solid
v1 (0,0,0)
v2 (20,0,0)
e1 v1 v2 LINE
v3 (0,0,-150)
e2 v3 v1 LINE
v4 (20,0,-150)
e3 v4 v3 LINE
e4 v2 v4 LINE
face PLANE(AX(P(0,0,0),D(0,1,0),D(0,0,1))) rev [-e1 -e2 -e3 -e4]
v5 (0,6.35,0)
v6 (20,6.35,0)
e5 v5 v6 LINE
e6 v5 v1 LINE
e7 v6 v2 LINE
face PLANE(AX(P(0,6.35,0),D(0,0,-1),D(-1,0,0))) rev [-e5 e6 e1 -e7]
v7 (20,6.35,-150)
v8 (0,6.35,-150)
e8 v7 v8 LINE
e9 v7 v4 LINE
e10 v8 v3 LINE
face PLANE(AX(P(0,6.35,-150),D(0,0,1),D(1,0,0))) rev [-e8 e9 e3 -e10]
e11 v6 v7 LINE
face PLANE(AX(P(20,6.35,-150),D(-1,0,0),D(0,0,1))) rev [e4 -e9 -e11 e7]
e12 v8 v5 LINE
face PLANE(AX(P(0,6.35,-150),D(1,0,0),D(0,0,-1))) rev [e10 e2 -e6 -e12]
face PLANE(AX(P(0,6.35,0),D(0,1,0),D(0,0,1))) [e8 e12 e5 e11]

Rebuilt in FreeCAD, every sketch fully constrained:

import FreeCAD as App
import Part
import Sketcher
from FreeCAD import Vector

doc = App.newDocument("Part")
params = doc.addObject("Spreadsheet::Sheet", "Params")
for row, (alias, value) in enumerate([
    ("sketch1_width", "20 mm"),
    ("sketch1_height", "150 mm"),
    ("pad1_length", "6.35 mm"),
], start=1):
    params.set(f"A{row}", alias)
    params.set(f"B{row}", "=" + value)
    params.setAlias(f"B{row}", alias)

body = doc.addObject("PartDesign::Body", "Body")

sketch1 = body.newObject("Sketcher::SketchObject", "Sketch")
sketch1.AttachmentSupport = (doc.getObject("XZ_Plane"), [""])
sketch1.MapMode = "FlatFace"
sketch1.addGeometry(Part.LineSegment(Vector(0, -150, 0), Vector(0, 0, 0)), False)
sketch1.addGeometry(Part.LineSegment(Vector(0, 0, 0), Vector(20, 0, 0)), False)
sketch1.addGeometry(Part.LineSegment(Vector(20, 0, 0), Vector(20, -150, 0)), False)
sketch1.addGeometry(Part.LineSegment(Vector(20, -150, 0), Vector(0, -150, 0)), False)
sketch1.addConstraint(Sketcher.Constraint("Coincident", 0, 2, 1, 1))
sketch1.addConstraint(Sketcher.Constraint("Coincident", 1, 2, 2, 1))
sketch1.addConstraint(Sketcher.Constraint("Coincident", 2, 2, 3, 1))
sketch1.addConstraint(Sketcher.Constraint("Coincident", 3, 2, 0, 1))
sketch1.addConstraint(Sketcher.Constraint("Vertical", 0))
sketch1.addConstraint(Sketcher.Constraint("Horizontal", 1))
sketch1.addConstraint(Sketcher.Constraint("Vertical", 2))
sketch1.addConstraint(Sketcher.Constraint("Horizontal", 3))
sketch1.addConstraint(Sketcher.Constraint("Coincident", 0, 2, -1, 1))
sketch1.addConstraint(Sketcher.Constraint("DistanceX", 1, 1, 1, 2, 20.0))
sketch1.addConstraint(Sketcher.Constraint("DistanceY", 0, 1, 0, 2, 150.0))
sketch1.setExpression("Constraints[9]", "Params.sketch1_width")
sketch1.setExpression("Constraints[10]", "Params.sketch1_height")
pad1 = body.newObject("PartDesign::Pad", "Pad")
pad1.Profile = sketch1
pad1.setExpression("Length", "Params.pad1_length")
pad1.Reversed = True

doc.recompute()
